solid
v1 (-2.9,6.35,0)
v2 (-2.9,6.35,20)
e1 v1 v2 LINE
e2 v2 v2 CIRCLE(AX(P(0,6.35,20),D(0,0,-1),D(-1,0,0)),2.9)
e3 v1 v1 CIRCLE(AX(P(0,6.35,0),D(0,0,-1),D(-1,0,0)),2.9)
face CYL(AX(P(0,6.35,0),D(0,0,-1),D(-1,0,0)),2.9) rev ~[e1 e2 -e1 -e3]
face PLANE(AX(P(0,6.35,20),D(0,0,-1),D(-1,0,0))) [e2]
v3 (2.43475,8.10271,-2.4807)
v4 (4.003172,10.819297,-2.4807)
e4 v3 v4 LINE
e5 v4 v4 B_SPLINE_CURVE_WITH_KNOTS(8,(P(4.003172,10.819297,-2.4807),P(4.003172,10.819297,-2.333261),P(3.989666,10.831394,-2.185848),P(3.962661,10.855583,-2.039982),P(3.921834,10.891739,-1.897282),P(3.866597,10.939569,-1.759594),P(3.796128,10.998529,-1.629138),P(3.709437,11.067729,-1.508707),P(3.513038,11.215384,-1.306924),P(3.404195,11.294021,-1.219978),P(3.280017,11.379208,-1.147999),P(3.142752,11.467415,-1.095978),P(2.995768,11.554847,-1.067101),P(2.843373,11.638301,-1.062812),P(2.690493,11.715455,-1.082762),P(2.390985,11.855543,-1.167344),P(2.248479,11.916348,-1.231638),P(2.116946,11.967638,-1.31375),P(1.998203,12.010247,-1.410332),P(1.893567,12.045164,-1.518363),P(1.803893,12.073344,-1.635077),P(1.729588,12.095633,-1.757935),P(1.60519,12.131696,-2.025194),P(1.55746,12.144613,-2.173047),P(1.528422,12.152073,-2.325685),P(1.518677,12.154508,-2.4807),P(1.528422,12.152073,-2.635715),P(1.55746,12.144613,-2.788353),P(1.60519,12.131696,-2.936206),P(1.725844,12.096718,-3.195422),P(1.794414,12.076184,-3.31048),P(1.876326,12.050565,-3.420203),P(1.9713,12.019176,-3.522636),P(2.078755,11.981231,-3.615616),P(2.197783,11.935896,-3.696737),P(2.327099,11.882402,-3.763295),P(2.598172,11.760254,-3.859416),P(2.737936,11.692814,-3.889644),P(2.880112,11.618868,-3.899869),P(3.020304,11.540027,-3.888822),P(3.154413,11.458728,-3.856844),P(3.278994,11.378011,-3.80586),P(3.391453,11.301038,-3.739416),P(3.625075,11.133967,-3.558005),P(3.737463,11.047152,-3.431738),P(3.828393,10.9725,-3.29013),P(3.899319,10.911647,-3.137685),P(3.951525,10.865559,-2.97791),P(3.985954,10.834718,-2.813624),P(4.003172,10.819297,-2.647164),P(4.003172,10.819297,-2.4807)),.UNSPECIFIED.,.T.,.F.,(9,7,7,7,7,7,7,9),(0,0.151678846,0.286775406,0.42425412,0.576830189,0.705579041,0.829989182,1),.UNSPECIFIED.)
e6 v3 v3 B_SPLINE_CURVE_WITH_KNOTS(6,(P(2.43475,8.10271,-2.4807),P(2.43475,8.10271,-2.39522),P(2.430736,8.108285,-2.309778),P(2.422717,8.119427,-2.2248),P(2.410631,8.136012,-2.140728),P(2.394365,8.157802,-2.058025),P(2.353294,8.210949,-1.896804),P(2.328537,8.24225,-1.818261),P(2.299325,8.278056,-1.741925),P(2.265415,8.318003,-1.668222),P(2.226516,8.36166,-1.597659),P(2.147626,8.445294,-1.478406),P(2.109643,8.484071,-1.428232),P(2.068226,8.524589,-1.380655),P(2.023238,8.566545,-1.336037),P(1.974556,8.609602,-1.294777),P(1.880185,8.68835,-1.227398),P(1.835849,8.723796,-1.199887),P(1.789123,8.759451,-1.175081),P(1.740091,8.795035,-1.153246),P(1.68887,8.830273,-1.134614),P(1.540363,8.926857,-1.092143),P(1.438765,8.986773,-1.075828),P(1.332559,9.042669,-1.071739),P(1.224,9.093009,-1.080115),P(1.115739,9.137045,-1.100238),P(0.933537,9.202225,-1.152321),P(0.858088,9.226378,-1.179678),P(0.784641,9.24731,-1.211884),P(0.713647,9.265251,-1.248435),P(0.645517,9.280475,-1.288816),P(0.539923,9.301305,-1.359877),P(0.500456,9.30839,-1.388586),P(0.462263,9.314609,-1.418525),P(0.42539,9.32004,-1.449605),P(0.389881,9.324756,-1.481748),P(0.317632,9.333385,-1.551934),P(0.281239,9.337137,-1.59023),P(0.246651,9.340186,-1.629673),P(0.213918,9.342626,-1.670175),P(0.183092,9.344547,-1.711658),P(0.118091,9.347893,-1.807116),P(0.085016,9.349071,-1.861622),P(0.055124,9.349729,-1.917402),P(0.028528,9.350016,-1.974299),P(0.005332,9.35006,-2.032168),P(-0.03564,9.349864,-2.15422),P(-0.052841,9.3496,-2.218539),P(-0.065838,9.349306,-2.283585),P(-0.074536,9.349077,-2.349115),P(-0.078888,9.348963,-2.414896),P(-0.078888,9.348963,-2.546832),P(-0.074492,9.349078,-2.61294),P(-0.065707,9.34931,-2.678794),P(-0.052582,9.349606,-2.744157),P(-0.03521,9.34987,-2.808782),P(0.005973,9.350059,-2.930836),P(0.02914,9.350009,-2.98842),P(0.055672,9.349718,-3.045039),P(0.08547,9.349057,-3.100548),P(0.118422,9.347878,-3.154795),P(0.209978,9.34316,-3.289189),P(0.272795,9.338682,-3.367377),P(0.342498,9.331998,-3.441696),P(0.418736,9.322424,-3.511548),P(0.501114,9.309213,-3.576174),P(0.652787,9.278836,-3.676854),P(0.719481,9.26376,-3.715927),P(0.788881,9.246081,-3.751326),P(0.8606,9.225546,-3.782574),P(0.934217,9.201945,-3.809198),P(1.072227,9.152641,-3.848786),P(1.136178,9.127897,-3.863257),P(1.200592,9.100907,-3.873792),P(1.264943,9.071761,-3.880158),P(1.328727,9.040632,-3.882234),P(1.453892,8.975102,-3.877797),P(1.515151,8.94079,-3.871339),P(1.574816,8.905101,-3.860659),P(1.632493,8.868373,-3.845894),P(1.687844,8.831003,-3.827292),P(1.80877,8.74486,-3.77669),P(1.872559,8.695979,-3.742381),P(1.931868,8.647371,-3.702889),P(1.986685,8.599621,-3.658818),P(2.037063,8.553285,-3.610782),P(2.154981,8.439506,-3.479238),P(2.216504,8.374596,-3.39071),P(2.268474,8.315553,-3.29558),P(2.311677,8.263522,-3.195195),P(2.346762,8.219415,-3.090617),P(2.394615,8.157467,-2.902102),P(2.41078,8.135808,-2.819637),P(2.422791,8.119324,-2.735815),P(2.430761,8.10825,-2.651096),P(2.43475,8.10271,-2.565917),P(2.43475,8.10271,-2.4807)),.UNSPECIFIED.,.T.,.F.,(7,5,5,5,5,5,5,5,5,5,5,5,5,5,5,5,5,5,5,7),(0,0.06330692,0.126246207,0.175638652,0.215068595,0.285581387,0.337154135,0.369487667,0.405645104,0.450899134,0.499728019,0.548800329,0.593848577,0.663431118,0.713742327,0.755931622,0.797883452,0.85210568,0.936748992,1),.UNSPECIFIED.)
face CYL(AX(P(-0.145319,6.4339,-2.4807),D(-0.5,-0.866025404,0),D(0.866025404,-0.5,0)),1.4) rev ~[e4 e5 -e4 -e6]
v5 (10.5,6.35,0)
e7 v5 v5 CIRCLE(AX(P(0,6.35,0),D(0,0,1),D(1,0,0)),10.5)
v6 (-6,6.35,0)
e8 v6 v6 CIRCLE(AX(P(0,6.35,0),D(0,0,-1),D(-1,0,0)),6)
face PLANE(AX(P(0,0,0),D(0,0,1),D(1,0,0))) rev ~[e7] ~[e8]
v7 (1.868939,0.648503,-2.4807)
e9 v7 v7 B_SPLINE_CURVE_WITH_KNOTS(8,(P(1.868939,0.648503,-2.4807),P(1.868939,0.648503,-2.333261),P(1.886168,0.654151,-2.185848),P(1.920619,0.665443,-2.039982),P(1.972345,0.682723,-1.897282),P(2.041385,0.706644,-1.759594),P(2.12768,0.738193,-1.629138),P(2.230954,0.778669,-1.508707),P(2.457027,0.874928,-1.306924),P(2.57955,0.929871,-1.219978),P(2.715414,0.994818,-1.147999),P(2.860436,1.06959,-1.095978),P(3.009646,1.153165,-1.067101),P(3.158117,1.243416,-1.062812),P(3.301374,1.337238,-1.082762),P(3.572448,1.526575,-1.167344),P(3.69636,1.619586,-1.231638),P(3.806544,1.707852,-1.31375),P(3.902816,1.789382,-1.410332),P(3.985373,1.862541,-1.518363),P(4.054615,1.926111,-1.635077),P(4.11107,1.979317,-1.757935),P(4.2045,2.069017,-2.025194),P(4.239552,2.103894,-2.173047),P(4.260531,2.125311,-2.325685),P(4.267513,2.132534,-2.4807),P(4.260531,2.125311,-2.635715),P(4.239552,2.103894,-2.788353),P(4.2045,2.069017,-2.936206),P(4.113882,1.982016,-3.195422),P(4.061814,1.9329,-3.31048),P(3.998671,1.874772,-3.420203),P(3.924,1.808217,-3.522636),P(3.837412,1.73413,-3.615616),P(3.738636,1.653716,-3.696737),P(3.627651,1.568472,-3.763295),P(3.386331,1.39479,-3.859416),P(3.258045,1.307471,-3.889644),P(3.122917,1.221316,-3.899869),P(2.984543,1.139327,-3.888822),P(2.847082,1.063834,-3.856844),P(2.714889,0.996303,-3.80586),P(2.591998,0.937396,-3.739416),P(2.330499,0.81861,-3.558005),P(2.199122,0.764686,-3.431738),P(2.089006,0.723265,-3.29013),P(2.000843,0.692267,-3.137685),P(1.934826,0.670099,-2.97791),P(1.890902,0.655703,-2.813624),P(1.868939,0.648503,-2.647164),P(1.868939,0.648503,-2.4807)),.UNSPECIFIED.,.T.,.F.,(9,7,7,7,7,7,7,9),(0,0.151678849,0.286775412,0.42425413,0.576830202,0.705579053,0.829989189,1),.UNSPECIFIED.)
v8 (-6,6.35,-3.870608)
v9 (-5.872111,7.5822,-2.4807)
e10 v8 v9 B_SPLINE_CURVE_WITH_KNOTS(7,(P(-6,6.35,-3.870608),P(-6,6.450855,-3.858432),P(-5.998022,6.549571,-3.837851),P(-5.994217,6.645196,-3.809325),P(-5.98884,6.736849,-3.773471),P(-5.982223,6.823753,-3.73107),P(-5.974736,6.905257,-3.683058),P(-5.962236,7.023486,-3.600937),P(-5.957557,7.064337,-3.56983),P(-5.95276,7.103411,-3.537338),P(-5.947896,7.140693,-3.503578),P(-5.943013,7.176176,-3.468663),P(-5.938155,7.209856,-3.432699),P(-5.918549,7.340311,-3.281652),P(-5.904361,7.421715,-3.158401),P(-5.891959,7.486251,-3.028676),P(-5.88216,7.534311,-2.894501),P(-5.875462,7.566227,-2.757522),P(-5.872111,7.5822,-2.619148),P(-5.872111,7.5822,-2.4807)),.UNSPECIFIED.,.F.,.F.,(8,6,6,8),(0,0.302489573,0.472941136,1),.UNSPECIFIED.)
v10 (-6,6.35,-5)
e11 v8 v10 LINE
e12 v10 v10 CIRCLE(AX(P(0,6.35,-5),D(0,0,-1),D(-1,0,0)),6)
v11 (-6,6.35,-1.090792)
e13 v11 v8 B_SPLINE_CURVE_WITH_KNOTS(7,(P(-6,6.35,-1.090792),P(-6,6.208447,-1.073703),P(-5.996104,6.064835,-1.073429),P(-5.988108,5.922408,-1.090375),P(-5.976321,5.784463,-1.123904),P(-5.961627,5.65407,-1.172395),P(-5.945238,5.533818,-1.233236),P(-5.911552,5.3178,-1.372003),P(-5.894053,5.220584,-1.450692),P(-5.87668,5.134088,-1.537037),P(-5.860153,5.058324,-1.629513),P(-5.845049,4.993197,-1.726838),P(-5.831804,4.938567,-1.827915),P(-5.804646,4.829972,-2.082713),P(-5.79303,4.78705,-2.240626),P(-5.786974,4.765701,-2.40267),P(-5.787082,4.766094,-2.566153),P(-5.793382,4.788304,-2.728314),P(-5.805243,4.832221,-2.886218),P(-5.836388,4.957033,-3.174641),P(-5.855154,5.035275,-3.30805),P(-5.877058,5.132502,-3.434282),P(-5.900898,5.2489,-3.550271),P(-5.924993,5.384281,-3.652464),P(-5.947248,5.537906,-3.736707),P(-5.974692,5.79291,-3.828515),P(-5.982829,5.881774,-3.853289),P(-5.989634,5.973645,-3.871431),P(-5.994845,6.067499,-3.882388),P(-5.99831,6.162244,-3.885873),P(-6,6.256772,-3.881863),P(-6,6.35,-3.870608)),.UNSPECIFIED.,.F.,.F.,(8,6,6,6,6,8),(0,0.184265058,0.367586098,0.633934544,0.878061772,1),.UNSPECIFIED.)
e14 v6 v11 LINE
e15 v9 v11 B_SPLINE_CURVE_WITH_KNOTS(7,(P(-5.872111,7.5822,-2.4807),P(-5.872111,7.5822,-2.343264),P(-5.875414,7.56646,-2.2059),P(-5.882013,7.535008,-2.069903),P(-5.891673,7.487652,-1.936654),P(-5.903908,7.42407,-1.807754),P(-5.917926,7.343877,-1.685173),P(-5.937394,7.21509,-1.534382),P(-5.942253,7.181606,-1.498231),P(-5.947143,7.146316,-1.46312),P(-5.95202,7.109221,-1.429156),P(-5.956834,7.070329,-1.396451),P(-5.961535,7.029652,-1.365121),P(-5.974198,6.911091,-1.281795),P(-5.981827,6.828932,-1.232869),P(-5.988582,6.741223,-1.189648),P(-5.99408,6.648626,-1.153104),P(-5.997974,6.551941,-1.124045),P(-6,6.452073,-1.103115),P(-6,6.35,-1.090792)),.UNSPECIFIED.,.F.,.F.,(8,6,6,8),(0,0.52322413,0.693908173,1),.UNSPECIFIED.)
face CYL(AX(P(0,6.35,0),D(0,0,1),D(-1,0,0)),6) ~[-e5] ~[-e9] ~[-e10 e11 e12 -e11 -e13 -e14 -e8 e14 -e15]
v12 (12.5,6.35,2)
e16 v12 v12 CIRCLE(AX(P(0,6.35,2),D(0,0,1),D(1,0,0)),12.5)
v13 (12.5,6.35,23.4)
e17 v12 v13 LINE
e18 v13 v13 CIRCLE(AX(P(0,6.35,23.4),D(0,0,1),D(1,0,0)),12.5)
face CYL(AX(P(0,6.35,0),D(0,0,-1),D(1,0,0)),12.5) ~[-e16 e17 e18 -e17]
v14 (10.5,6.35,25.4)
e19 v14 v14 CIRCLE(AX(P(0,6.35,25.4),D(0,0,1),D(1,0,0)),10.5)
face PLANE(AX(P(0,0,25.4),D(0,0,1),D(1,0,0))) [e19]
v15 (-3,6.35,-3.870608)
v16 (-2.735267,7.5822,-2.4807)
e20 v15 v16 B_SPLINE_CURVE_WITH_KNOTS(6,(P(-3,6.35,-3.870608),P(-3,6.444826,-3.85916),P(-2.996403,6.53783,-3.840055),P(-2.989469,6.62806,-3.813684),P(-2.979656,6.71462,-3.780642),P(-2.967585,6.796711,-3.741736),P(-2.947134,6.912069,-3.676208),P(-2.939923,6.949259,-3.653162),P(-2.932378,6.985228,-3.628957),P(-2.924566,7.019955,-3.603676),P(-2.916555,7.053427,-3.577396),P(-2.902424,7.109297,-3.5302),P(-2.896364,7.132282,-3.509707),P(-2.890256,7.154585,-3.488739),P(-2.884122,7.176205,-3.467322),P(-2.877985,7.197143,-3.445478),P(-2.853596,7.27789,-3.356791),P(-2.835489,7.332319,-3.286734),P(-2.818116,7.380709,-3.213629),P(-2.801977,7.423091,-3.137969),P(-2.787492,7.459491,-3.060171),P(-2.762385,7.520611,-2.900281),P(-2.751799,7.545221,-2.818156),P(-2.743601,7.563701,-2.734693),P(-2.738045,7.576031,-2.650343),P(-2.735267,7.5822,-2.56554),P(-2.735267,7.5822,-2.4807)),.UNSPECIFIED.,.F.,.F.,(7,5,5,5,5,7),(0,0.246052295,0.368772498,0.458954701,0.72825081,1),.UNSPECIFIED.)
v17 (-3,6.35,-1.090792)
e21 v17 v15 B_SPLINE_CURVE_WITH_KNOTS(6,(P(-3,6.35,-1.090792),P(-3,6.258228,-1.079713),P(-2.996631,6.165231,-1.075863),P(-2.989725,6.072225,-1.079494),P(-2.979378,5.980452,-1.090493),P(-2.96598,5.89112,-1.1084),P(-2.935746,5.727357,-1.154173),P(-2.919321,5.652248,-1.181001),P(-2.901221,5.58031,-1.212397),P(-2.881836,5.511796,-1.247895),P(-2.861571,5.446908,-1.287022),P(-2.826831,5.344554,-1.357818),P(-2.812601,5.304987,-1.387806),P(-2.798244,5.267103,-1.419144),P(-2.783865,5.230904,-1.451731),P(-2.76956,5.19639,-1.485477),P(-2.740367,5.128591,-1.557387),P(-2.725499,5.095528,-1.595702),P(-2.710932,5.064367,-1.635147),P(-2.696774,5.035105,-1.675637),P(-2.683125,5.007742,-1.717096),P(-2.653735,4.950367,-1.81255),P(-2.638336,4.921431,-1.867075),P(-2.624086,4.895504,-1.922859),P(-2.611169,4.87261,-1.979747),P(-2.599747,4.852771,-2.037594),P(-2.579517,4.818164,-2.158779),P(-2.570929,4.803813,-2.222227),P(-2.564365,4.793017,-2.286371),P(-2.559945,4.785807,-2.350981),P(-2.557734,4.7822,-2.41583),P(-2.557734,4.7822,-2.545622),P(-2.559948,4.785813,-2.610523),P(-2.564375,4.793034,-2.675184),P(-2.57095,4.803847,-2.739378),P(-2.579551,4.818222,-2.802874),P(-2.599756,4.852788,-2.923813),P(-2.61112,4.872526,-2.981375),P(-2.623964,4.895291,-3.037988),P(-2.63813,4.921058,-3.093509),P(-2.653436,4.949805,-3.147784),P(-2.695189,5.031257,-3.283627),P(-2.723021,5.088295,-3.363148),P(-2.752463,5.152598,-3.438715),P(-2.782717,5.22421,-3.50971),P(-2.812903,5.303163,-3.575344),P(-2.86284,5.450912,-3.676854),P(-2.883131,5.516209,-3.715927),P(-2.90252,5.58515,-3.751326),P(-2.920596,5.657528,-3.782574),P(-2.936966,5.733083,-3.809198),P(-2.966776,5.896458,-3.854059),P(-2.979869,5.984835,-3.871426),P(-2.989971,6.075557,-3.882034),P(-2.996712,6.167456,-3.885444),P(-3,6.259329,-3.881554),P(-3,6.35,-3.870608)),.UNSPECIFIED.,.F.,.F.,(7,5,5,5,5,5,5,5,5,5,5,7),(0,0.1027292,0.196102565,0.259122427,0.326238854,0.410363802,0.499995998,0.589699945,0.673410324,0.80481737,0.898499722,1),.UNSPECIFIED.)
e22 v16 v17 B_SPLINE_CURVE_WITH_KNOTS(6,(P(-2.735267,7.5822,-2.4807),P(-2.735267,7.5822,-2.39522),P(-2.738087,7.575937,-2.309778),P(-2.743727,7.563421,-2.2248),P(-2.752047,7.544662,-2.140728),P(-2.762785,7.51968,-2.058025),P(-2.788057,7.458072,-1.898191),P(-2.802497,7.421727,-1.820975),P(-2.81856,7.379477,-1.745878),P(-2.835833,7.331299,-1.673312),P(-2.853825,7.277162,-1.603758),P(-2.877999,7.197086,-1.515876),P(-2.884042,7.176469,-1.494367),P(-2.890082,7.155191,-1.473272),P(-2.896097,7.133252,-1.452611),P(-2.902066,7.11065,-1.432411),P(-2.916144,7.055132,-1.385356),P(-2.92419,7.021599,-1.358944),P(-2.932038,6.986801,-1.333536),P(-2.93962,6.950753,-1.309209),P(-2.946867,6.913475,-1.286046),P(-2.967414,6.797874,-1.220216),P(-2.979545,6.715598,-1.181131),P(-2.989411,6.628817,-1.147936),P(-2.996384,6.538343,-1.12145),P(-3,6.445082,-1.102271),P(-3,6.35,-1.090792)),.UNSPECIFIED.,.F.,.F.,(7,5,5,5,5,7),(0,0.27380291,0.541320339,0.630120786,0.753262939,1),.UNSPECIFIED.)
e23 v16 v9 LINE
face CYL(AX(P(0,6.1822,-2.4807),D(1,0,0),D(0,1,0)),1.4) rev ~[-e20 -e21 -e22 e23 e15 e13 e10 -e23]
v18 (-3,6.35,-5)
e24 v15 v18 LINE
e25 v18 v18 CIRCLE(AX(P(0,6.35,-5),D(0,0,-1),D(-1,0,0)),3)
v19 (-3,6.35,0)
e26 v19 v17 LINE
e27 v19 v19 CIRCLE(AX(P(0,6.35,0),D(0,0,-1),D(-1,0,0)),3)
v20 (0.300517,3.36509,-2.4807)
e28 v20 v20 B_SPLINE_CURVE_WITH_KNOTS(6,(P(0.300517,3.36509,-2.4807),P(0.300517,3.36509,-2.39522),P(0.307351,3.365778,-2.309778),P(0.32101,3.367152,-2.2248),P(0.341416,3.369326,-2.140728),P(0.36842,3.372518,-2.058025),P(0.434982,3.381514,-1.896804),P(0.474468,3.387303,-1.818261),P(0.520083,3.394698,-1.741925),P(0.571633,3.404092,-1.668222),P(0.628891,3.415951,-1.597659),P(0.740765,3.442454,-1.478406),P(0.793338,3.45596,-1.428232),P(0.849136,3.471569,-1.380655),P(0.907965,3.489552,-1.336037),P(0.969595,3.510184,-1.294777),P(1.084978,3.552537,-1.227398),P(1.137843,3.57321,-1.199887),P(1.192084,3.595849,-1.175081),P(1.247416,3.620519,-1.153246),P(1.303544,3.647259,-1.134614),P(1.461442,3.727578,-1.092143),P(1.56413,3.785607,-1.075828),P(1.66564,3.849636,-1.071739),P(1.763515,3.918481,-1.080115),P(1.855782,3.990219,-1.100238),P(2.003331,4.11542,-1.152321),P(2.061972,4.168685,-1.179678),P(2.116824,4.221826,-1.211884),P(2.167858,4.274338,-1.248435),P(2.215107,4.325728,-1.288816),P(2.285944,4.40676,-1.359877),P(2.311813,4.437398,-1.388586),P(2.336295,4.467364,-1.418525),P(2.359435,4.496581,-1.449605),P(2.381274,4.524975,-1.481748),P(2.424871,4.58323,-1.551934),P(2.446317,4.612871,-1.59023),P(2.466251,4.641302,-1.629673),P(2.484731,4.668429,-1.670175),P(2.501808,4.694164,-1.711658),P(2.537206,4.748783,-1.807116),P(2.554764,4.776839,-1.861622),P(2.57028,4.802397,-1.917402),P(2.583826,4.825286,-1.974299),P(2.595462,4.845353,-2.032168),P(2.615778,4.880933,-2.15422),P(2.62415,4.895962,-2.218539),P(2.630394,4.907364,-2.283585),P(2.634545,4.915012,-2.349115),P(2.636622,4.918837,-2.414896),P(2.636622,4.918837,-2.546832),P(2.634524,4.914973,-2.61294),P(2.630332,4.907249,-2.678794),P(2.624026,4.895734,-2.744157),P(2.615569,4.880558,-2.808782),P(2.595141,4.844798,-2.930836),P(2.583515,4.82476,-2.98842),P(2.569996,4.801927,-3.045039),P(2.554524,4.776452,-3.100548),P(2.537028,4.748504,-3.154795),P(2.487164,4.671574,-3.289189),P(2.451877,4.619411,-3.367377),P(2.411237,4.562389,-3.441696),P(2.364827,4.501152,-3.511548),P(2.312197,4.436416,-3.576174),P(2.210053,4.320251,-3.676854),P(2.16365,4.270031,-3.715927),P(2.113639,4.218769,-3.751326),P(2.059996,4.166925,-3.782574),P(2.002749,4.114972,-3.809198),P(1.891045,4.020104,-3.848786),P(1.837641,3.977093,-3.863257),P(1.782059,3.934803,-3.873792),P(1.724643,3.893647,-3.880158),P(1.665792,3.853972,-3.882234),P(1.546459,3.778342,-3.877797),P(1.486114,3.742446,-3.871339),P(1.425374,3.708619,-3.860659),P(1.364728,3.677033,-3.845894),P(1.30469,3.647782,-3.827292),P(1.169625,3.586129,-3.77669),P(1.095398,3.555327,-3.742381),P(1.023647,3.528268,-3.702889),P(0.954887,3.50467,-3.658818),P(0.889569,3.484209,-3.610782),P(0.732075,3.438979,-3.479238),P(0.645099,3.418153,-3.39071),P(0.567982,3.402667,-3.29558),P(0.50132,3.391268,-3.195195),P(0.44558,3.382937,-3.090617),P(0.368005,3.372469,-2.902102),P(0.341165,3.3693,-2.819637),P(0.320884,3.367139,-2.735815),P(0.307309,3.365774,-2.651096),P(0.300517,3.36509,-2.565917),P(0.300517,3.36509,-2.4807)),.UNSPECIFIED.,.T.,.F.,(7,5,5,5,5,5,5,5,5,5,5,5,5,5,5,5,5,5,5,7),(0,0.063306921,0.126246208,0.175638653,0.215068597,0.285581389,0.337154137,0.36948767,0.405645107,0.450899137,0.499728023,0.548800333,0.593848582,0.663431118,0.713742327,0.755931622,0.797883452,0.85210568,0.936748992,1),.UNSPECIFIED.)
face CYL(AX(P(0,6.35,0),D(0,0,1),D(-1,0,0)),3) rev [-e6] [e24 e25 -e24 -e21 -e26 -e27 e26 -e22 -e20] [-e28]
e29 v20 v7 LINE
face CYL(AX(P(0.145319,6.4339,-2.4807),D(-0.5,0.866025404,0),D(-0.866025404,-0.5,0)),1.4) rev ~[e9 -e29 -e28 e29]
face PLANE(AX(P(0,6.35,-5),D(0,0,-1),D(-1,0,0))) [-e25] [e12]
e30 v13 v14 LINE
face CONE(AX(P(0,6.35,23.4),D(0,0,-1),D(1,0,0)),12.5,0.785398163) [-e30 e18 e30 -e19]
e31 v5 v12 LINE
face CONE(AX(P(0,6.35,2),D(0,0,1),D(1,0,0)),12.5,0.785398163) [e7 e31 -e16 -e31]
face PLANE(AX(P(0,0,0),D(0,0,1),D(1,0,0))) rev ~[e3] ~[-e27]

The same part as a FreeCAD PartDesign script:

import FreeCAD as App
import Part
import Sketcher


def edges_at(feature, points):
    """Names of the edges that pass closest to the given points."""
    edges = feature.Shape.Edges
    near = lambda p: min(range(len(edges)), key=lambda i: edges[i].distToShape(Part.Vertex(*p))[0])
    return sorted({f"Edge{near(p) + 1}" for p in points})

doc = App.newDocument("Part")
body = doc.addObject("PartDesign::Body", "Body")

# Sketch on XY plane
sketch1 = body.newObject("Sketcher::SketchObject", "Sketch")
sketch1.AttachmentSupport = (doc.getObject("XY_Plane"), [""])
sketch1.MapMode = "FlatFace"
sketch1.addGeometry(Part.Circle(App.Vector(0, 6, 0), App.Vector(0, 0, 1), 12), False)
sketch1.addConstraint([
    Sketcher.Constraint("PointOnObject", 0, 3, -2),
    Sketcher.Constraint("Diameter", 0, 25.0),
    Sketcher.Constraint("DistanceY", -1, 1, 0, 3, 6.35),
])
pad1 = body.newObject("PartDesign::Pad", "Pad")
pad1.Profile = sketch1
pad1.Length = 25.4

# Sketch on XY plane
sketch2 = body.newObject("Sketcher::SketchObject", "Sketch001")
sketch2.AttachmentSupport = (doc.getObject("XY_Plane"), [""])
sketch2.MapMode = "FlatFace"
sketch2.addGeometry(Part.Circle(App.Vector(0, 6.3, 0), App.Vector(0, 0, 1), 2.9), False)
sketch2.addConstraint([
    Sketcher.Constraint("PointOnObject", 0, 3, -2),
    Sketcher.Constraint("Diameter", 0, 5.8),
    Sketcher.Constraint("DistanceY", -1, 1, 0, 3, 6.35),
])
pocket1 = body.newObject("PartDesign::Pocket", "Pocket")
pocket1.Profile = sketch2
pocket1.Length = 20
pocket1.Reversed = True
doc.recompute()

chamfer = body.newObject("PartDesign::Chamfer", "Chamfer")
chamfer.Base = (pocket1, edges_at(pocket1, [(-12.5, 6.35, 25.4), (-12.5, 6.35, 0)]))
chamfer.Size = 2

# Sketch on XY plane
sketch3 = body.newObject("Sketcher::SketchObject", "Sketch002")
sketch3.AttachmentSupport = (doc.getObject("XY_Plane"), [""])
sketch3.MapMode = "FlatFace"
sketch3.addGeometry([
    Part.Circle(App.Vector(0, 6.3, 0), App.Vector(0, 0, 1), 6),
    Part.Circle(App.Vector(0, 6.3, 0), App.Vector(0, 0, 1), 3),
], False)
sketch3.addConstraint([
    Sketcher.Constraint("Coincident", 1, 3, 0, 3),
    Sketcher.Constraint("PointOnObject", 0, 3, -2),
    Sketcher.Constraint("Diameter", 0, 12.0),
    Sketcher.Constraint("Diameter", 1, 6.0),
    Sketcher.Constraint("DistanceY", -1, 1, 0, 3, 6.35),
])
pad2 = body.newObject("PartDesign::Pad", "Pad001")
pad2.Profile = sketch3
pad2.Length = 5
pad2.Reversed = True

# Sketch on YZ plane
sketch4 = body.newObject("Sketcher::SketchObject", "Sketch003")
sketch4.AttachmentSupport = (doc.getObject("YZ_Plane"), [""])
sketch4.MapMode = "FlatFace"
sketch4.addGeometry(Part.Circle(App.Vector(6.2, -2.5, 0), App.Vector(0, 0, 1), 1.4), False)
sketch4.addConstraint([
    Sketcher.Constraint("Diameter", 0, 2.8),
    Sketcher.Constraint("DistanceX", -1, 1, 0, 3, 6.1822),
    Sketcher.Constraint("DistanceY", 0, 3, -1, 1, 2.4807),
])
pocket2 = body.newObject("PartDesign::Pocket", "Pocket001")
pocket2.Profile = sketch4
pocket2.Type = "ThroughAll"
doc.recompute()

datumline = body.newObject("PartDesign::Line", "DatumLine")
datumline.Placement = App.Placement(App.Vector(0, 6.35, 0), App.Rotation(App.Vector(0, 0, 1), App.Vector(0, 0, 1)))
polarpattern = body.newObject("PartDesign::PolarPattern", "PolarPattern")
polarpattern.Originals = [pocket2]
polarpattern.Axis = (datumline, [""])
polarpattern.Angle = 360
polarpattern.Occurrences = 3
body.Tip = polarpattern

doc.recompute()
